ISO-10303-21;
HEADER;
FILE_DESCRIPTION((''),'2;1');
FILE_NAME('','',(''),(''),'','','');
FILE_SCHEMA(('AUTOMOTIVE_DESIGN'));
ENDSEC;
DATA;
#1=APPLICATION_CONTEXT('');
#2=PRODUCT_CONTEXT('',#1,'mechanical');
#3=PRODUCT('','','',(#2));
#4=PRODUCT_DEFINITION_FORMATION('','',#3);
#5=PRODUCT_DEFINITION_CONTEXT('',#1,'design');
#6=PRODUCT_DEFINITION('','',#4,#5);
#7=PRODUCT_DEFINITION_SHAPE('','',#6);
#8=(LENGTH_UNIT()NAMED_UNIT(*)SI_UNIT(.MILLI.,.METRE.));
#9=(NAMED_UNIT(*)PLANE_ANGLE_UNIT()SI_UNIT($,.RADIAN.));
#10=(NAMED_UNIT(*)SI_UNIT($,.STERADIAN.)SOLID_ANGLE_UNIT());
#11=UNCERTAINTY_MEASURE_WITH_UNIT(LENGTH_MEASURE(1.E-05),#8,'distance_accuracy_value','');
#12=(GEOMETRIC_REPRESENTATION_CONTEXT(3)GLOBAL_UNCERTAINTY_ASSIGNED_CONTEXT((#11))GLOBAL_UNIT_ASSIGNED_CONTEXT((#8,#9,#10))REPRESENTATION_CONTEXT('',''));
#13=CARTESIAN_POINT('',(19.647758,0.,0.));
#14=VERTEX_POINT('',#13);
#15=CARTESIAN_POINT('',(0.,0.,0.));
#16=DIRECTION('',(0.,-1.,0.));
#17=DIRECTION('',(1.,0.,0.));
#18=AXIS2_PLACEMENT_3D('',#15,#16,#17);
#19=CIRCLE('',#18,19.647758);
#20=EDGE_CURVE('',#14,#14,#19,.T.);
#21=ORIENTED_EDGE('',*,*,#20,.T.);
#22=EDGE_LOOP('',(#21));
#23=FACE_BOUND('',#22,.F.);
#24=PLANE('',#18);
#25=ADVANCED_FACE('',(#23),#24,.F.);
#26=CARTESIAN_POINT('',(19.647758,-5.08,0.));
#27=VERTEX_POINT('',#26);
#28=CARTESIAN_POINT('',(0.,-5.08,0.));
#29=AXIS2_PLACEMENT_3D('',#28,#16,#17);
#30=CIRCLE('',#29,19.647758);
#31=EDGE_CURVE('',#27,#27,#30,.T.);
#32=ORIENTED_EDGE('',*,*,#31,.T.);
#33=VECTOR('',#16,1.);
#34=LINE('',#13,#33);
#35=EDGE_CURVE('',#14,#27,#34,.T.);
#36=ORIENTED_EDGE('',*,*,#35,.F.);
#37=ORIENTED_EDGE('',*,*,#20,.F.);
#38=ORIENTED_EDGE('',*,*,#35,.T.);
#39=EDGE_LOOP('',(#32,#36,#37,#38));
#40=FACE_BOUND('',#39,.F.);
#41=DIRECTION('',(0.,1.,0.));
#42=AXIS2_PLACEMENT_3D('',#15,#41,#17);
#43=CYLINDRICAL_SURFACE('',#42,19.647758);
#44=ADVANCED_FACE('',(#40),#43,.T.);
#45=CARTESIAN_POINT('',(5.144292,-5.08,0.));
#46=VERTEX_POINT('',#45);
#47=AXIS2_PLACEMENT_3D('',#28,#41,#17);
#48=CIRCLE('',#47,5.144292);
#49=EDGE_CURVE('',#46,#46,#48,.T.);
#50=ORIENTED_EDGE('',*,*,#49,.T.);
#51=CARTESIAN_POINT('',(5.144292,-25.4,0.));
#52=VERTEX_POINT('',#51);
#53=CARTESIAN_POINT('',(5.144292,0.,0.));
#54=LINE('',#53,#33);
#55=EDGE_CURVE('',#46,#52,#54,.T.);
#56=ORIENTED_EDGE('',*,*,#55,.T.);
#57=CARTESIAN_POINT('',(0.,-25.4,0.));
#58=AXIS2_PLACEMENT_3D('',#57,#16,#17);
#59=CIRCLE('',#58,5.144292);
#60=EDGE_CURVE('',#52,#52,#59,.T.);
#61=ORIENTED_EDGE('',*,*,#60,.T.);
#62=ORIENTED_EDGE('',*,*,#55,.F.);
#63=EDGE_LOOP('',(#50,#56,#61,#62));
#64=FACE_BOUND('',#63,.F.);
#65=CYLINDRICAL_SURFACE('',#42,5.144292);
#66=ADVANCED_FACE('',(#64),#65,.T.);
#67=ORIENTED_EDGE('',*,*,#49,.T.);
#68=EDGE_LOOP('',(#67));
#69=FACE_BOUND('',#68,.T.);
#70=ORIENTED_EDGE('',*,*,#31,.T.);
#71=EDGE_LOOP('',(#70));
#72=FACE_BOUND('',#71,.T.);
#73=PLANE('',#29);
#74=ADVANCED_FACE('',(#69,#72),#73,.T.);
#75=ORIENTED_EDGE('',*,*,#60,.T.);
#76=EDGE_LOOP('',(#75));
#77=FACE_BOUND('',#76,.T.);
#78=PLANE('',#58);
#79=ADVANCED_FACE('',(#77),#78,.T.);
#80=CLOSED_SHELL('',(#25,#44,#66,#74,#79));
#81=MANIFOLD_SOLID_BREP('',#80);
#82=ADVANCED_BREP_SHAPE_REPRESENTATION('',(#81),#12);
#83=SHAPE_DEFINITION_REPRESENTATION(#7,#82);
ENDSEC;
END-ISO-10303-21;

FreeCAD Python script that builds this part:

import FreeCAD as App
import Part
import Sketcher

V = App.Vector
Q = App.Units.Quantity

doc = App.newDocument("Part")
body = doc.addObject("PartDesign::Body", "Body")

sketch1 = body.newObject("Sketcher::SketchObject", "Sketch")
sketch1.AttachmentSupport = (doc.getObject("XZ_Plane"), [""])
sketch1.MapMode = "FlatFace"
sketch1.addGeometry([
    Part.Circle(V(0, 0, 0), V(0, 0, 1), 20),
    Part.Circle(V(0, 0, 0), V(0, 0, 1), 5),
], False)
sketch1.addConstraint([
    Sketcher.Constraint("Coincident", 0, 3, -1, 1),
    Sketcher.Constraint("Coincident", 1, 3, -1, 1),
    Sketcher.Constraint("Diameter", 1, Q("0.4 in")),
    Sketcher.Constraint("Diameter", 0, 39.295516),
])
pad1 = body.newObject("PartDesign::Pad", "Pad")
pad1.Profile = sketch1
pad1.Length = Q("0.2 in")

sketch2 = body.newObject("Sketcher::SketchObject", "Sketch001")
sketch2.AttachmentSupport = (doc.getObject("XZ_Plane"), [""])
sketch2.MapMode = "FlatFace"
sketch2.addGeometry(Part.Circle(V(0, 0, 0), V(0, 0, 1), 5), False)
sketch2.addConstraint([
    Sketcher.Constraint("Coincident", 0, 3, -1, 1),
    Sketcher.Constraint("Diameter", 0, 10.288584),
])
pad2 = body.newObject("PartDesign::Pad", "Pad001")
pad2.Profile = sketch2
pad2.Length = Q("1 in")

doc.recompute()
